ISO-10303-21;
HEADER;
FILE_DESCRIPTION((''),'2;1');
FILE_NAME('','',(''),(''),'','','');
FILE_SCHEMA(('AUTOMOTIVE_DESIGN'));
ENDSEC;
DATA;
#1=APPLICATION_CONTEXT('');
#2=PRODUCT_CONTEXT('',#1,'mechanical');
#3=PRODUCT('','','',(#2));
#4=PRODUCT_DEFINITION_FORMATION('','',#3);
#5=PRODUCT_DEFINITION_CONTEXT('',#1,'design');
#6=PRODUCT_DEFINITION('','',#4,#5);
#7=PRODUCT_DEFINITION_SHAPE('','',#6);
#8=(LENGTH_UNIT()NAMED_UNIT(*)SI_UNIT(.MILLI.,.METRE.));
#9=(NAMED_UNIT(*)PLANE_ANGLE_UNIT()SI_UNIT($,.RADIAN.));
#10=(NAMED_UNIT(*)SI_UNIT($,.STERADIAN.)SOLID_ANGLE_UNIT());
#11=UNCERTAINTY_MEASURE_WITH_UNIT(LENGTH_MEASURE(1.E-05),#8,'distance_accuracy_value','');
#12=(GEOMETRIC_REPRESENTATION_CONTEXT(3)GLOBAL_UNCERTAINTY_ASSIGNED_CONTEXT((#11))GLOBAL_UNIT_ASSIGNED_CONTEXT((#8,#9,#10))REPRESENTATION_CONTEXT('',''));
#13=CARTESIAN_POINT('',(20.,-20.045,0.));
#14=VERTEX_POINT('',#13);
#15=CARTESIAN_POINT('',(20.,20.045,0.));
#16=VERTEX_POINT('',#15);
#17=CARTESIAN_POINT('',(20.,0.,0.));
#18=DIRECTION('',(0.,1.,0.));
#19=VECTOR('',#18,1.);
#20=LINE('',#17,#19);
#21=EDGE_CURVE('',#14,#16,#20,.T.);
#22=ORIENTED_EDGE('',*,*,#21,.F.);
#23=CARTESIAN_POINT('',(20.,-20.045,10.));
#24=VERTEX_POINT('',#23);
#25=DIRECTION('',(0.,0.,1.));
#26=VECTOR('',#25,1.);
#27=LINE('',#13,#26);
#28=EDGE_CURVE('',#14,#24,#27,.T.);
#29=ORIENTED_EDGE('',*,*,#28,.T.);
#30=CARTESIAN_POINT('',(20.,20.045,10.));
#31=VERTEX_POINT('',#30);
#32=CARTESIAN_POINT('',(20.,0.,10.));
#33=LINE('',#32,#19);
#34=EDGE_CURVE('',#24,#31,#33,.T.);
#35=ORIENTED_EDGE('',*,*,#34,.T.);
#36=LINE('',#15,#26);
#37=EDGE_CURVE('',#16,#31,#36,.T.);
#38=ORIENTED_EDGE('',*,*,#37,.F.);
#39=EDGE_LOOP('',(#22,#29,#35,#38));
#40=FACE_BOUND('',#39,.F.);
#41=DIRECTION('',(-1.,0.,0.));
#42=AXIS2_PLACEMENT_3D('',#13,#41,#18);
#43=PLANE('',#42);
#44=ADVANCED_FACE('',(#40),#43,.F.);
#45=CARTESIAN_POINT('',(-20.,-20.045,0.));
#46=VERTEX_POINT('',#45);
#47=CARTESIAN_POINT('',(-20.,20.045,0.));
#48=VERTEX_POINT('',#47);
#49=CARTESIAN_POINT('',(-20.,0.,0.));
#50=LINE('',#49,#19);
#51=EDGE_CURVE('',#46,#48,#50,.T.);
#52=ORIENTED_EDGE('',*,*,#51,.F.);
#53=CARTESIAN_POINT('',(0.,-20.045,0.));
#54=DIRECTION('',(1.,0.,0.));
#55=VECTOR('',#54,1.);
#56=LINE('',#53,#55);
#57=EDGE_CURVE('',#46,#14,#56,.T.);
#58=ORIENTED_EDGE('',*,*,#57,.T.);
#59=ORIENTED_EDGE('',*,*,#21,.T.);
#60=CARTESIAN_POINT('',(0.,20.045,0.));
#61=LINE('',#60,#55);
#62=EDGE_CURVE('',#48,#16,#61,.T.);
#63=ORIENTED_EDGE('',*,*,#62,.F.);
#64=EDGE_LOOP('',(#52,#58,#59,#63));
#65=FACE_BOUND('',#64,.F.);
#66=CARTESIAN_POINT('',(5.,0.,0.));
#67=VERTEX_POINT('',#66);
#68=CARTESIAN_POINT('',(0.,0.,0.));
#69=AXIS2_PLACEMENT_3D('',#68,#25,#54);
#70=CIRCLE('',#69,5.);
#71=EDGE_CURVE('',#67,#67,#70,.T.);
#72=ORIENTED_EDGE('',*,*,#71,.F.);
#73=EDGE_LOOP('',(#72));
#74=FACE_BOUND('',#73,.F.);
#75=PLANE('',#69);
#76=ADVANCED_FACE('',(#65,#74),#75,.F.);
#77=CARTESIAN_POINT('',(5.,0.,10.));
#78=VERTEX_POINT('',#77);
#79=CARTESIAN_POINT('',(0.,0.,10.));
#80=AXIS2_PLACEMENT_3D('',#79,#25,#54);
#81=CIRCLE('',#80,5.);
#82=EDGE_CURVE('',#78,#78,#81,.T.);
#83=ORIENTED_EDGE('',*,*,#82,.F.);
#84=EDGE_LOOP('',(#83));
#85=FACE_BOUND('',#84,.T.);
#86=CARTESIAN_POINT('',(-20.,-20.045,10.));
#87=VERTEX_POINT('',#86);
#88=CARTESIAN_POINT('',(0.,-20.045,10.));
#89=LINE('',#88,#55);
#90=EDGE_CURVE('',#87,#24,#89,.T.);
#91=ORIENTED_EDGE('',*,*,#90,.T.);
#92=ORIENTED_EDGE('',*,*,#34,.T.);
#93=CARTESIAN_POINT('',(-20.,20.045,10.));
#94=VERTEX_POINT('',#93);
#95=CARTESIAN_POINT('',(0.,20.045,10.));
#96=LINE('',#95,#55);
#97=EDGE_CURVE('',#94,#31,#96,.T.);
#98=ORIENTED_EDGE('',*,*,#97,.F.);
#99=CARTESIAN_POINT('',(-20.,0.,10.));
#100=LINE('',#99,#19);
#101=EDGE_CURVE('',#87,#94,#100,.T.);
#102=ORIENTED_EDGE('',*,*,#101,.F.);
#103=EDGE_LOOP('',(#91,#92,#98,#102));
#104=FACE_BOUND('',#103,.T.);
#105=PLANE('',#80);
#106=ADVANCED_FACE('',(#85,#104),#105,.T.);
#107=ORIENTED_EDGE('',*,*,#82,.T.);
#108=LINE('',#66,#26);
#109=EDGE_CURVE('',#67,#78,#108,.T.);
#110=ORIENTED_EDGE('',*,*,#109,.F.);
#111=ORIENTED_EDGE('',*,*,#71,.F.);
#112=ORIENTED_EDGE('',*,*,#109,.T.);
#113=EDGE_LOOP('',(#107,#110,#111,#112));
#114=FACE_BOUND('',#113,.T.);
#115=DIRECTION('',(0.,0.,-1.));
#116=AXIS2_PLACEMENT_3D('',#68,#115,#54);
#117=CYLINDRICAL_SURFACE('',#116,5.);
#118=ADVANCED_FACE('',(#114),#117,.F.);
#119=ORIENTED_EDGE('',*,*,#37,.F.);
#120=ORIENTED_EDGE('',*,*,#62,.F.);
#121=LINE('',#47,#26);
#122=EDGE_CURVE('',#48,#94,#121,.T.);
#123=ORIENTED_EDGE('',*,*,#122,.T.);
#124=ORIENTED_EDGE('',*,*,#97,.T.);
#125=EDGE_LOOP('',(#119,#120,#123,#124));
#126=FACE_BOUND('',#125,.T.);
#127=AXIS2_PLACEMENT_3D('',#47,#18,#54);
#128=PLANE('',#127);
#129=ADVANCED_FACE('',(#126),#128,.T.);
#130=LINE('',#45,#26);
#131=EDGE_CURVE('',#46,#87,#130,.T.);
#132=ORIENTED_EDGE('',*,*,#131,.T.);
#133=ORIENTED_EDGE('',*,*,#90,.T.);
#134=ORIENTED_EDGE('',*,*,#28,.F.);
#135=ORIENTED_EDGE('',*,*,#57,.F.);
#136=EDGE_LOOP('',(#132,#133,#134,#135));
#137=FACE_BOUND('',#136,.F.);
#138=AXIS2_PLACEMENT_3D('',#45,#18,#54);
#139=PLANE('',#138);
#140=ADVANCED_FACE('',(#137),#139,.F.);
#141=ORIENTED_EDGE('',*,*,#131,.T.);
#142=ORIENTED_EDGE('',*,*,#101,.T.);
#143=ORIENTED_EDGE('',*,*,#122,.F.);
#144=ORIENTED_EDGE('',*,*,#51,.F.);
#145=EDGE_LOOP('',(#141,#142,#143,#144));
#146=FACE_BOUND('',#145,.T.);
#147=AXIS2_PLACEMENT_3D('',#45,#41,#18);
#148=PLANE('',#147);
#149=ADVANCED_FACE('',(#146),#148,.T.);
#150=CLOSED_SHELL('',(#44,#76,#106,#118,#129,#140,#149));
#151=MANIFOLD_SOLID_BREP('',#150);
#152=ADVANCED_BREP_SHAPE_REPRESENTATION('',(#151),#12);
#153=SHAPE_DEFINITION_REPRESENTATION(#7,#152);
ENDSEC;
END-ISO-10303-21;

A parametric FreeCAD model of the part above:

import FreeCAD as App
import Part
import Sketcher

V = App.Vector


def add_polygon(sketch, points):
    """Adds a closed chain of lines whose ends are joined by coincident constraints."""
    first, n = sketch.GeometryCount, len(points)
    for a, b in zip(points, points[1:] + points[:1]):
        sketch.addGeometry(Part.LineSegment(App.Vector(*a, 0), App.Vector(*b, 0)), False)
    for i in range(n):
        sketch.addConstraint(Sketcher.Constraint("Coincident", first + i, 2, first + (i + 1) % n, 1))

doc = App.newDocument("Part")
body = doc.addObject("PartDesign::Body", "Body")

# Sketch on XY plane
sketch1 = body.newObject("Sketcher::SketchObject", "Sketch")
sketch1.AttachmentSupport = (doc.getObject("XY_Plane"), [""])
sketch1.MapMode = "FlatFace"
add_polygon(sketch1, [(-20, 20), (-20, -20), (20, -20), (20, 20)])  # lines 0-3
sketch1.addGeometry(Part.Circle(V(0, 0, 0), V(0, 0, 1), 5), False)  # 4
sketch1.addConstraint(Sketcher.Constraint("Vertical", 0))
sketch1.addConstraint(Sketcher.Constraint("Horizontal", 1))
sketch1.addConstraint(Sketcher.Constraint("Vertical", 2))
sketch1.addConstraint(Sketcher.Constraint("Horizontal", 3))
sketch1.addConstraint(Sketcher.Constraint("Coincident", 4, 3, -1, 1))
sketch1.addConstraint(Sketcher.Constraint("Symmetric", 0, 2, 2, 2, -1, 1))
sketch1.addConstraint(Sketcher.Constraint("Diameter", 4, 10.0))
sketch1.addConstraint(Sketcher.Constraint("DistanceX", 1, 1, 1, 2, 40.0))
sketch1.addConstraint(Sketcher.Constraint("DistanceY", 0, 2, 0, 1, 40.09))
pad1 = body.newObject("PartDesign::Pad", "Pad")
pad1.Profile = sketch1
pad1.Length = 10

doc.recompute()
